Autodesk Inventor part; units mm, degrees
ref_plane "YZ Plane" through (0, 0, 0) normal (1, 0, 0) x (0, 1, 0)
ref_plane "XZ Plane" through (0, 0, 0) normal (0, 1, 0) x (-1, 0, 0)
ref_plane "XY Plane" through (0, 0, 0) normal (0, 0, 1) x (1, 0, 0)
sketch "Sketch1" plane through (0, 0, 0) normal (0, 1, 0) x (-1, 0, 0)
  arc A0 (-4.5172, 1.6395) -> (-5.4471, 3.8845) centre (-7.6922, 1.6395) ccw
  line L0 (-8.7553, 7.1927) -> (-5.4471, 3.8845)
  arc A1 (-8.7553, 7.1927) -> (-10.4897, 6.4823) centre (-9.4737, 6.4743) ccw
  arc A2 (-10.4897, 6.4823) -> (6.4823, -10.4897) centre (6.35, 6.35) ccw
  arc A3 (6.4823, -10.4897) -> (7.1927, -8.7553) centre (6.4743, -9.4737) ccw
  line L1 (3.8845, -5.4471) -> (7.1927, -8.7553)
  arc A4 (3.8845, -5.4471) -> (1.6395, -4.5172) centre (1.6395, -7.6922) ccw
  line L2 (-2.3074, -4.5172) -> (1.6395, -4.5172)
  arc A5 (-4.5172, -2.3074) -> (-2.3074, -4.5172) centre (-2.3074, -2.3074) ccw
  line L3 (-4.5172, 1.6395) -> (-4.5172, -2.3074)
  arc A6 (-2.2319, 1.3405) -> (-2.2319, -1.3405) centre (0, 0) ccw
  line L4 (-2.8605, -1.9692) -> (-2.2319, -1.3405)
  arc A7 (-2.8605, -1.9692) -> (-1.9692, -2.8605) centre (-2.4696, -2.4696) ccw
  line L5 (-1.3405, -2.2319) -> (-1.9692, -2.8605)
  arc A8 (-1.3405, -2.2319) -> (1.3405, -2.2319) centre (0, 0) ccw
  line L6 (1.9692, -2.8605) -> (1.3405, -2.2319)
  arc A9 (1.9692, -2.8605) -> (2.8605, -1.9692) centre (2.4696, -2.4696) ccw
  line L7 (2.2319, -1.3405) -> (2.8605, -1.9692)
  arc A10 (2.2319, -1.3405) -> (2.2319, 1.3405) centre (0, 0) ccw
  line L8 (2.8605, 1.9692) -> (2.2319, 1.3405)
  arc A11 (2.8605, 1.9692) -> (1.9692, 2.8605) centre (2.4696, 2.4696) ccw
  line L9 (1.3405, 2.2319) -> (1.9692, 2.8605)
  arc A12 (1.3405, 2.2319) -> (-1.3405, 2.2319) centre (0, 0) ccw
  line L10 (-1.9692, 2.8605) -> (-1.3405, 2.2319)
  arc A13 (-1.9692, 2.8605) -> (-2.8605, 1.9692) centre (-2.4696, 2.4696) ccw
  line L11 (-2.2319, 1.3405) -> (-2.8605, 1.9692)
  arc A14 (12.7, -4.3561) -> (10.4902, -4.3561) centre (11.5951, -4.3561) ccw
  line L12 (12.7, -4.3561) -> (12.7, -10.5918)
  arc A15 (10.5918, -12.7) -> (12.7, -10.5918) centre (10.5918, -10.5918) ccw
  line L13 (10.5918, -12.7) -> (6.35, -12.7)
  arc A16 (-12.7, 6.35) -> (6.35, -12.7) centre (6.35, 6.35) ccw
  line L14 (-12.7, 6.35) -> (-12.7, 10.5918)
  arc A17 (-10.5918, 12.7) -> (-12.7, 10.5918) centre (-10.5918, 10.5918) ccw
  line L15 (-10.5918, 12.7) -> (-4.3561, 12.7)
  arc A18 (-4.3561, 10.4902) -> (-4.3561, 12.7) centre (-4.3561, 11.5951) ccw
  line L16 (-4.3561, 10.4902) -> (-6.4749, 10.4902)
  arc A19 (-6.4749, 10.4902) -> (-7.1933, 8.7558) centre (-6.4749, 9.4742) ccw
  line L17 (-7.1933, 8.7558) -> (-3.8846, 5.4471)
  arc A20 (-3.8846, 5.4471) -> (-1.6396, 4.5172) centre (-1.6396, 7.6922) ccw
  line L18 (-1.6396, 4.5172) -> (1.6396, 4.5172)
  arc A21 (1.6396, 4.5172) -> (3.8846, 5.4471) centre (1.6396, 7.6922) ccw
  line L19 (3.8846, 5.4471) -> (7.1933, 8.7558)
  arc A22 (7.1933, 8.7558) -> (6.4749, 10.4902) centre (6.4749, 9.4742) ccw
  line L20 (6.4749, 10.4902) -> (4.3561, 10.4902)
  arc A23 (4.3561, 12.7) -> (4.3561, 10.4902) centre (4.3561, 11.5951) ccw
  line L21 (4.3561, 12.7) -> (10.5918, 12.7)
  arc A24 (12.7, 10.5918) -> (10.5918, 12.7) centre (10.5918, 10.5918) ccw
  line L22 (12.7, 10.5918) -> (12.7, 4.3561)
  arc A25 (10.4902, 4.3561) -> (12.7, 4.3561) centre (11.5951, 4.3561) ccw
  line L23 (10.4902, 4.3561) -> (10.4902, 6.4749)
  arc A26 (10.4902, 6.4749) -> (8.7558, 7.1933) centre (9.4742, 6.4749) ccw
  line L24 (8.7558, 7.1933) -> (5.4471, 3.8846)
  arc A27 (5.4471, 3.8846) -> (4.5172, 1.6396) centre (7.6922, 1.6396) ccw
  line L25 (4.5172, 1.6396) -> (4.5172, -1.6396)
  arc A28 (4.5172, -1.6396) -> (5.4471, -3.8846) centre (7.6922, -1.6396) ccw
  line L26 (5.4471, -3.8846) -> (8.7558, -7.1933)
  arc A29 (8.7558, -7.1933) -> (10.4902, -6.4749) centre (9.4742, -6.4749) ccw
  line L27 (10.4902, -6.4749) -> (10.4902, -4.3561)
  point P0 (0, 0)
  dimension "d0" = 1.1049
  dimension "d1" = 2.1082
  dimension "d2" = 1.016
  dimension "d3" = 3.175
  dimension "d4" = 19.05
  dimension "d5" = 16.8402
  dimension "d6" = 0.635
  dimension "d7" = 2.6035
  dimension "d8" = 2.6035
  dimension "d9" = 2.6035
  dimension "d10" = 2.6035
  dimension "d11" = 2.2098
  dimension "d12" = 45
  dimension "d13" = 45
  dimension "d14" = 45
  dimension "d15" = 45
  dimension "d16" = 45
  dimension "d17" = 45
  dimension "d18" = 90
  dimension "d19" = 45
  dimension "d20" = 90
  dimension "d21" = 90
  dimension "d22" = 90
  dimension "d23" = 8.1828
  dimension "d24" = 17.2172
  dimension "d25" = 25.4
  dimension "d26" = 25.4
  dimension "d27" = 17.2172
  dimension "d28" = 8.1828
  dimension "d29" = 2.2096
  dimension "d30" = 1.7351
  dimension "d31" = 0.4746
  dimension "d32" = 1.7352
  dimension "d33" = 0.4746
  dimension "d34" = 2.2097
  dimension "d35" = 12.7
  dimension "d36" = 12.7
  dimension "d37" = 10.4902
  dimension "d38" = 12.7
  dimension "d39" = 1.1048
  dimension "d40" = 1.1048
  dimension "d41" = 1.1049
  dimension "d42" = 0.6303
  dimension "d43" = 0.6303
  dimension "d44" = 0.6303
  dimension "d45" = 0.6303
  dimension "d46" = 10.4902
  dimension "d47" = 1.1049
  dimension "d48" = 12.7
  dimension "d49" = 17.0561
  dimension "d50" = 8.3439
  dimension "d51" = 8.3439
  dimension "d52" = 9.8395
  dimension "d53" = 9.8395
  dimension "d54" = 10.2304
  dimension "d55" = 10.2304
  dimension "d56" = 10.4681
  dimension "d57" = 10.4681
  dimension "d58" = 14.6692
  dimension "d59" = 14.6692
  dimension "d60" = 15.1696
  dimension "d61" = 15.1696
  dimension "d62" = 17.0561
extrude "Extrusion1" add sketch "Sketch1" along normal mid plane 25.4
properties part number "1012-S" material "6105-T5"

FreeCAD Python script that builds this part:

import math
import FreeCAD as App
import Part
import Sketcher

V = App.Vector
Q = App.Units.Quantity

doc = App.newDocument("Part")
body = doc.addObject("PartDesign::Body", "Body")

sketch1 = body.newObject("Sketcher::SketchObject", "Sketch")
sketch1.AttachmentSupport = (doc.getObject("XZ_Plane"), [""])
sketch1.MapMode = "FlatFace"
sketch1.addGeometry(Part.LineSegment(V(-12.7, -10.6, 0), V(-12.7, -4.4, 0)), False)
sketch1.addGeometry(Part.ArcOfCircle(Part.Circle(V(-11.6, -4.4, 0), V(0, 0, 1), 1.1), math.radians(0), math.radians(180)), False)
sketch1.addGeometry(Part.LineSegment(V(-10.5, -4.4, 0), V(-10.5, -6.5, 0)), False)
sketch1.addGeometry(Part.ArcOfCircle(Part.Circle(V(-9.5, -6.5, 0), V(0, 0, 1), 1), math.radians(180), math.radians(315)), False)
sketch1.addGeometry(Part.LineSegment(V(-8.8, -7.2, 0), V(-5.4, -3.9, 0)), False)
sketch1.addGeometry(Part.ArcOfCircle(Part.Circle(V(-7.7, -1.6, 0), V(0, 0, 1), 3.2), math.radians(-45), math.radians(0)), False)
sketch1.addGeometry(Part.LineSegment(V(-4.5, -1.6, 0), V(-4.5, 1.6, 0)), False)
sketch1.addGeometry(Part.ArcOfCircle(Part.Circle(V(-7.7, 1.6, 0), V(0, 0, 1), 3.2), math.radians(0), math.radians(45)), False)
sketch1.addGeometry(Part.LineSegment(V(-5.4, 3.9, 0), V(-8.8, 7.2, 0)), False)
sketch1.addGeometry(Part.ArcOfCircle(Part.Circle(V(-9.5, 6.5, 0), V(0, 0, 1), 1), math.radians(45), math.radians(180)), False)
sketch1.addGeometry(Part.LineSegment(V(-10.5, 6.5, 0), V(-10.5, 4.4, 0)), False)
sketch1.addGeometry(Part.ArcOfCircle(Part.Circle(V(-11.6, 4.4, 0), V(0, 0, 1), 1.1), math.radians(180), math.radians(360)), False)
sketch1.addGeometry(Part.LineSegment(V(-12.7, 4.4, 0), V(-12.7, 10.6, 0)), False)
sketch1.addGeometry(Part.ArcOfCircle(Part.Circle(V(-10.6, 10.6, 0), V(0, 0, 1), 2.1), math.radians(90), math.radians(180)), False)
sketch1.addGeometry(Part.LineSegment(V(-10.6, 12.7, 0), V(-4.4, 12.7, 0)), False)
sketch1.addGeometry(Part.ArcOfCircle(Part.Circle(V(-4.4, 11.6, 0), V(0, 0, 1), 1.1), math.radians(-90), math.radians(90)), False)
sketch1.addGeometry(Part.LineSegment(V(-4.4, 10.5, 0), V(-6.5, 10.5, 0)), False)
sketch1.addGeometry(Part.ArcOfCircle(Part.Circle(V(-6.5, 9.5, 0), V(0, 0, 1), 1), math.radians(90), math.radians(225)), False)
sketch1.addGeometry(Part.LineSegment(V(-7.2, 8.8, 0), V(-3.9, 5.4, 0)), False)
sketch1.addGeometry(Part.ArcOfCircle(Part.Circle(V(-1.6, 7.7, 0), V(0, 0, 1), 3.2), math.radians(-135), math.radians(-90)), False)
sketch1.addGeometry(Part.LineSegment(V(-1.6, 4.5, 0), V(1.6, 4.5, 0)), False)
sketch1.addGeometry(Part.ArcOfCircle(Part.Circle(V(1.6, 7.7, 0), V(0, 0, 1), 3.2), math.radians(-90), math.radians(-45)), False)
sketch1.addGeometry(Part.LineSegment(V(3.9, 5.4, 0), V(7.2, 8.8, 0)), False)
sketch1.addGeometry(Part.ArcOfCircle(Part.Circle(V(6.5, 9.5, 0), V(0, 0, 1), 1), math.radians(-45), math.radians(90)), False)
sketch1.addGeometry(Part.LineSegment(V(6.5, 10.5, 0), V(4.4, 10.5, 0)), False)
sketch1.addGeometry(Part.ArcOfCircle(Part.Circle(V(4.4, 11.6, 0), V(0, 0, 1), 1.1), math.radians(90), math.radians(270)), False)
sketch1.addGeometry(Part.LineSegment(V(4.4, 12.7, 0), V(10.6, 12.7, 0)), False)
sketch1.addGeometry(Part.ArcOfCircle(Part.Circle(V(10.6, 10.6, 0), V(0, 0, 1), 2.1), math.radians(0), math.radians(90)), False)
sketch1.addGeometry(Part.LineSegment(V(12.7, 10.6, 0), V(12.7, 6.3, 0)), False)
sketch1.addGeometry(Part.ArcOfCircle(Part.Circle(V(-6.3, 6.3, 0), V(0, 0, 1), 19), math.radians(-90), math.radians(0)), False)
sketch1.addGeometry(Part.LineSegment(V(-6.3, -12.7, 0), V(-10.6, -12.7, 0)), False)
sketch1.addGeometry(Part.ArcOfCircle(Part.Circle(V(-10.6, -10.6, 0), V(0, 0, 1), 2.1), math.radians(180), math.radians(270)), False)
sketch1.addGeometry(Part.ArcOfCircle(Part.Circle(V(7.7, 1.6, 0), V(0, 0, 1), 3.2), math.radians(135), math.radians(180)), False)
sketch1.addGeometry(Part.LineSegment(V(4.5, 1.6, 0), V(4.5, -2.3, 0)), False)
sketch1.addGeometry(Part.ArcOfCircle(Part.Circle(V(2.3, -2.3, 0), V(0, 0, 1), 2.2), math.radians(-90), math.radians(0)), False)
sketch1.addGeometry(Part.LineSegment(V(2.3, -4.5, 0), V(-1.6, -4.5, 0)), False)
sketch1.addGeometry(Part.ArcOfCircle(Part.Circle(V(-1.6, -7.7, 0), V(0, 0, 1), 3.2), math.radians(90), math.radians(135)), False)
sketch1.addGeometry(Part.LineSegment(V(-3.9, -5.4, 0), V(-7.2, -8.8, 0)), False)
sketch1.addGeometry(Part.ArcOfCircle(Part.Circle(V(-6.5, -9.5, 0), V(0, 0, 1), 1), math.radians(135), math.radians(270)), False)
sketch1.addGeometry(Part.ArcOfCircle(Part.Circle(V(-6.3, 6.3, 0), V(0, 0, 1), 16.8), math.radians(-90), math.radians(0)), False)
sketch1.addGeometry(Part.ArcOfCircle(Part.Circle(V(9.5, 6.5, 0), V(0, 0, 1), 1), math.radians(0), math.radians(135)), False)
sketch1.addGeometry(Part.LineSegment(V(8.8, 7.2, 0), V(5.4, 3.9, 0)), False)
sketch1.addGeometry(Part.ArcOfCircle(Part.Circle(V(0, 0, 0), V(0, 0, 1), 2.6), math.radians(-31), math.radians(31)), False)
sketch1.addGeometry(Part.LineSegment(V(2.2, 1.3, 0), V(2.9, 2, 0)), False)
sketch1.addGeometry(Part.ArcOfCircle(Part.Circle(V(2.5, 2.5, 0), V(0, 0, 1), 0.6), math.radians(-52), math.radians(142)), False)
sketch1.addGeometry(Part.LineSegment(V(2, 2.9, 0), V(1.3, 2.2, 0)), False)
sketch1.addGeometry(Part.ArcOfCircle(Part.Circle(V(0, 0, 0), V(0, 0, 1), 2.6), math.radians(59), math.radians(121)), False)
sketch1.addGeometry(Part.LineSegment(V(-1.3, 2.2, 0), V(-2, 2.9, 0)), False)
sketch1.addGeometry(Part.ArcOfCircle(Part.Circle(V(-2.5, 2.5, 0), V(0, 0, 1), 0.6), math.radians(38), math.radians(232)), False)
sketch1.addGeometry(Part.LineSegment(V(-2.9, 2, 0), V(-2.2, 1.3, 0)), False)
sketch1.addGeometry(Part.ArcOfCircle(Part.Circle(V(0, 0, 0), V(0, 0, 1), 2.6), math.radians(149), math.radians(211)), False)
sketch1.addGeometry(Part.LineSegment(V(-2.2, -1.3, 0), V(-2.9, -2, 0)), False)
sketch1.addGeometry(Part.ArcOfCircle(Part.Circle(V(-2.5, -2.5, 0), V(0, 0, 1), 0.6), math.radians(128), math.radians(322)), False)
sketch1.addGeometry(Part.LineSegment(V(-2, -2.9, 0), V(-1.3, -2.2, 0)), False)
sketch1.addGeometry(Part.ArcOfCircle(Part.Circle(V(0, 0, 0), V(0, 0, 1), 2.6), math.radians(-121), math.radians(-59)), False)
sketch1.addGeometry(Part.LineSegment(V(1.3, -2.2, 0), V(2, -2.9, 0)), False)
sketch1.addGeometry(Part.ArcOfCircle(Part.Circle(V(2.5, -2.5, 0), V(0, 0, 1), 0.6), math.radians(-142), math.radians(52)), False)
sketch1.addGeometry(Part.LineSegment(V(2.9, -2, 0), V(2.2, -1.3, 0)), False)
sketch1.addConstraint(Sketcher.Constraint("Tangent", 0, 2, 1, 2))
sketch1.addConstraint(Sketcher.Constraint("Tangent", 1, 1, 2, 1))
sketch1.addConstraint(Sketcher.Constraint("Tangent", 2, 2, 3, 1))
sketch1.addConstraint(Sketcher.Constraint("Tangent", 3, 2, 4, 1))
sketch1.addConstraint(Sketcher.Constraint("Tangent", 4, 2, 5, 1))
sketch1.addConstraint(Sketcher.Constraint("Tangent", 5, 2, 6, 1))
sketch1.addConstraint(Sketcher.Constraint("Tangent", 6, 2, 7, 1))
sketch1.addConstraint(Sketcher.Constraint("Tangent", 7, 2, 8, 1))
sketch1.addConstraint(Sketcher.Constraint("Tangent", 8, 2, 9, 1))
sketch1.addConstraint(Sketcher.Constraint("Tangent", 9, 2, 10, 1))
sketch1.addConstraint(Sketcher.Constraint("Tangent", 10, 2, 11, 2))
sketch1.addConstraint(Sketcher.Constraint("Tangent", 11, 1, 12, 1))
sketch1.addConstraint(Sketcher.Constraint("Tangent", 12, 2, 13, 2))
sketch1.addConstraint(Sketcher.Constraint("Tangent", 13, 1, 14, 1))
sketch1.addConstraint(Sketcher.Constraint("Tangent", 14, 2, 15, 2))
sketch1.addConstraint(Sketcher.Constraint("Tangent", 15, 1, 16, 1))
sketch1.addConstraint(Sketcher.Constraint("Tangent", 16, 2, 17, 1))
sketch1.addConstraint(Sketcher.Constraint("Tangent", 17, 2, 18, 1))
sketch1.addConstraint(Sketcher.Constraint("Tangent", 18, 2, 19, 1))
sketch1.addConstraint(Sketcher.Constraint("Tangent", 19, 2, 20, 1))
sketch1.addConstraint(Sketcher.Constraint("Tangent", 20, 2, 21, 1))
sketch1.addConstraint(Sketcher.Constraint("Tangent", 21, 2, 22, 1))
sketch1.addConstraint(Sketcher.Constraint("Tangent", 22, 2, 23, 1))
sketch1.addConstraint(Sketcher.Constraint("Tangent", 23, 2, 24, 1))
sketch1.addConstraint(Sketcher.Constraint("Tangent", 24, 2, 25, 2))
sketch1.addConstraint(Sketcher.Constraint("Tangent", 25, 1, 26, 1))
sketch1.addConstraint(Sketcher.Constraint("Tangent", 26, 2, 27, 2))
sketch1.addConstraint(Sketcher.Constraint("Tangent", 27, 1, 28, 1))
sketch1.addConstraint(Sketcher.Constraint("Tangent", 28, 2, 29, 2))
sketch1.addConstraint(Sketcher.Constraint("Tangent", 29, 1, 30, 1))
sketch1.addConstraint(Sketcher.Constraint("Tangent", 30, 2, 31, 2))
sketch1.addConstraint(Sketcher.Constraint("Tangent", 31, 1, 0, 1))
sketch1.addConstraint(Sketcher.Constraint("Tangent", 32, 2, 33, 1))
sketch1.addConstraint(Sketcher.Constraint("Tangent", 33, 2, 34, 2))
sketch1.addConstraint(Sketcher.Constraint("Tangent", 34, 1, 35, 1))
sketch1.addConstraint(Sketcher.Constraint("Tangent", 35, 2, 36, 1))
sketch1.addConstraint(Sketcher.Constraint("Tangent", 36, 2, 37, 1))
sketch1.addConstraint(Sketcher.Constraint("Tangent", 37, 2, 38, 1))
sketch1.addConstraint(Sketcher.Constraint("Tangent", 38, 2, 39, 1))
sketch1.addConstraint(Sketcher.Constraint("Tangent", 39, 2, 40, 1))
sketch1.addConstraint(Sketcher.Constraint("Tangent", 40, 2, 41, 1))
sketch1.addConstraint(Sketcher.Constraint("Tangent", 41, 2, 32, 1))
sketch1.addConstraint(Sketcher.Constraint("Coincident", 42, 2, 43, 1))
sketch1.addConstraint(Sketcher.Constraint("Coincident", 43, 2, 44, 1))
sketch1.addConstraint(Sketcher.Constraint("Coincident", 44, 2, 45, 1))
sketch1.addConstraint(Sketcher.Constraint("Coincident", 45, 2, 46, 1))
sketch1.addConstraint(Sketcher.Constraint("Coincident", 46, 2, 47, 1))
sketch1.addConstraint(Sketcher.Constraint("Coincident", 47, 2, 48, 1))
sketch1.addConstraint(Sketcher.Constraint("Coincident", 48, 2, 49, 1))
sketch1.addConstraint(Sketcher.Constraint("Coincident", 49, 2, 50, 1))
sketch1.addConstraint(Sketcher.Constraint("Coincident", 50, 2, 51, 1))
sketch1.addConstraint(Sketcher.Constraint("Coincident", 51, 2, 52, 1))
sketch1.addConstraint(Sketcher.Constraint("Coincident", 52, 2, 53, 1))
sketch1.addConstraint(Sketcher.Constraint("Coincident", 53, 2, 54, 1))
sketch1.addConstraint(Sketcher.Constraint("Coincident", 54, 2, 55, 1))
sketch1.addConstraint(Sketcher.Constraint("Coincident", 55, 2, 56, 1))
sketch1.addConstraint(Sketcher.Constraint("Coincident", 56, 2, 57, 1))
sketch1.addConstraint(Sketcher.Constraint("Coincident", 57, 2, 42, 1))
sketch1.addConstraint(Sketcher.Constraint("Vertical", 0))
sketch1.addConstraint(Sketcher.Constraint("Vertical", 2))
sketch1.addConstraint(Sketcher.Constraint("Vertical", 6))
sketch1.addConstraint(Sketcher.Constraint("Vertical", 10))
sketch1.addConstraint(Sketcher.Constraint("Vertical", 12))
sketch1.addConstraint(Sketcher.Constraint("Horizontal", 14))
sketch1.addConstraint(Sketcher.Constraint("Horizontal", 16))
sketch1.addConstraint(Sketcher.Constraint("Horizontal", 20))
sketch1.addConstraint(Sketcher.Constraint("Horizontal", 24))
sketch1.addConstraint(Sketcher.Constraint("Horizontal", 26))
sketch1.addConstraint(Sketcher.Constraint("Vertical", 28))
sketch1.addConstraint(Sketcher.Constraint("Horizontal", 30))
sketch1.addConstraint(Sketcher.Constraint("Vertical", 33))
sketch1.addConstraint(Sketcher.Constraint("Horizontal", 35))
sketch1.addConstraint(Sketcher.Constraint("Coincident", 42, 3, -1, 1))
sketch1.addConstraint(Sketcher.Constraint("Coincident", 46, 3, -1, 1))
sketch1.addConstraint(Sketcher.Constraint("Coincident", 50, 3, -1, 1))
sketch1.addConstraint(Sketcher.Constraint("Coincident", 54, 3, -1, 1))
sketch1.addConstraint(Sketcher.Constraint("Coincident", 39, 3, 29, 3))
sketch1.addConstraint(Sketcher.Constraint("Equal", 5, 7))
sketch1.addConstraint(Sketcher.Constraint("Equal", 3, 9))
sketch1.addConstraint(Sketcher.Constraint("Equal", 1, 11))
sketch1.addConstraint(Sketcher.Constraint("Equal", 11, 15))
sketch1.addConstraint(Sketcher.Constraint("Equal", 9, 17))
sketch1.addConstraint(Sketcher.Constraint("Equal", 7, 19))
sketch1.addConstraint(Sketcher.Constraint("Equal", 19, 21))
sketch1.addConstraint(Sketcher.Constraint("Equal", 17, 23))
sketch1.addConstraint(Sketcher.Constraint("Equal", 15, 25))
sketch1.addConstraint(Sketcher.Constraint("Equal", 13, 27))
sketch1.addConstraint(Sketcher.Constraint("Equal", 27, 31))
sketch1.addConstraint(Sketcher.Constraint("Equal", 21, 32))
sketch1.addConstraint(Sketcher.Constraint("Equal", 32, 36))
sketch1.addConstraint(Sketcher.Constraint("Equal", 23, 38))
sketch1.addConstraint(Sketcher.Constraint("Equal", 38, 40))
sketch1.addConstraint(Sketcher.Constraint("Equal", 42, 46))
sketch1.addConstraint(Sketcher.Constraint("Equal", 44, 48))
sketch1.addConstraint(Sketcher.Constraint("Equal", 46, 50))
sketch1.addConstraint(Sketcher.Constraint("Equal", 48, 52))
sketch1.addConstraint(Sketcher.Constraint("Equal", 50, 54))
sketch1.addConstraint(Sketcher.Constraint("Equal", 52, 56))
sketch1.addConstraint(Sketcher.Constraint("Symmetric", 27, 3, 31, 3, -1, 1))
sketch1.addConstraint(Sketcher.Constraint("Symmetric", 5, 3, 32, 3, -1, 1))
sketch1.addConstraint(Sketcher.Constraint("Symmetric", 21, 3, 36, 3, -1, 1))
sketch1.addConstraint(Sketcher.Constraint("Symmetric", 44, 3, 52, 3, -1, 1))
sketch1.addConstraint(Sketcher.Constraint("Symmetric", 48, 3, 56, 3, -1, 1))
sketch1.addConstraint(Sketcher.Constraint("Symmetric", 17, 3, 23, 3, -2))
sketch1.addConstraint(Sketcher.Constraint("Symmetric", 44, 3, 48, 3, -2))
sketch1.addConstraint(Sketcher.Constraint("Symmetric", 7, 2, 41, 2, -2))
sketch1.addConstraint(Sketcher.Constraint("Symmetric", 3, 3, 9, 3, -1))
sketch1.addConstraint(Sketcher.Constraint("Symmetric", 18, 2, 36, 2, -1))
sketch1.addConstraint(Sketcher.Constraint("Perpendicular", 4, 8))
sketch1.addConstraint(Sketcher.Constraint("Parallel", 8, 18))
sketch1.addConstraint(Sketcher.Constraint("Parallel", 41, 43))
sketch1.addConstraint(Sketcher.Constraint("Parallel", 43, 45))
sketch1.addConstraint(Sketcher.Constraint("Perpendicular", 45, 47))
sketch1.addConstraint(Sketcher.Constraint("Parallel", 47, 49))
sketch1.addConstraint(Sketcher.Constraint("Perpendicular", 49, 51))
sketch1.addConstraint(Sketcher.Constraint("Parallel", 51, 53))
sketch1.addConstraint(Sketcher.Constraint("Perpendicular", 53, 55))
sketch1.addConstraint(Sketcher.Constraint("Parallel", 55, 57))
sketch1.addConstraint(Sketcher.Constraint("Horizontal", 45, 2, 46, 2))
sketch1.addConstraint(Sketcher.Constraint("Horizontal", 43, 2, 48, 2))
sketch1.addConstraint(Sketcher.Constraint("Horizontal", 53, 2, 54, 2))
sketch1.addConstraint(Sketcher.Constraint("Horizontal", 51, 2, 56, 2))
sketch1.addConstraint(Sketcher.Constraint("Vertical", 49, 2, 50, 2))
sketch1.addConstraint(Sketcher.Constraint("Vertical", 47, 2, 52, 2))
sketch1.addConstraint(Sketcher.Constraint("Equal", 16, 24))
sketch1.addConstraint(Sketcher.Constraint("Equal", 26, 0))
sketch1.addConstraint(Sketcher.Constraint("Equal", 24, 2))
sketch1.addConstraint(Sketcher.Constraint("Equal", 20, 6))
sketch1.addConstraint(Sketcher.Constraint("Equal", 2, 10))
sketch1.addConstraint(Sketcher.Constraint("Equal", 30, 28))
sketch1.addConstraint(Sketcher.Constraint("Equal", 43, 45))
sketch1.addConstraint(Sketcher.Constraint("Radius", 3, Q("0.04 in")))
sketch1.addConstraint(Sketcher.Constraint("Radius", 29, Q("0.75 in")))
sketch1.addConstraint(Sketcher.Constraint("Radius", 5, Q("0.125 in")))
sketch1.addConstraint(Sketcher.Constraint("Radius", 13, Q("0.083 in")))
sketch1.addConstraint(Sketcher.Constraint("Radius", 34, Q("0.087 in")))
sketch1.addConstraint(Sketcher.Constraint("Radius", 39, Q("0.663 in")))
sketch1.addConstraint(Sketcher.Constraint("Radius", 44, Q("0.025 in")))
sketch1.addConstraint(Sketcher.Constraint("DistanceX", 0, 2, -1, 1, Q("0.5 in")))
sketch1.addConstraint(Sketcher.Constraint("Radius", 1, Q("0.0435 in")))
sketch1.addConstraint(Sketcher.Constraint("Radius", 42, Q("0.1025 in")))
sketch1.addConstraint(Sketcher.Constraint("Distance", 43, Q("0.035 in")))
sketch1.addConstraint(Sketcher.Constraint("DistanceX", 14, 1, 14, 2, Q("0.2455 in")))
sketch1.addConstraint(Sketcher.Constraint("DistanceX", 20, 1, 20, 2, Q("0.1291 in")))
sketch1.addConstraint(Sketcher.Constraint("DistanceX", 35, 2, 35, 1, Q("0.1554 in")))
sketch1.addConstraint(Sketcher.Constraint("DistanceX", -1, 1, 44, 3, Q("2.4696 mm")))
sketch1.addConstraint(Sketcher.Constraint("DistanceY", -1, 1, 44, 3, Q("2.4696 mm")))
pad1 = body.newObject("PartDesign::Pad", "Pad")
pad1.Profile = sketch1
pad1.Length = Q("1 in")
pad1.Midplane = True

doc.recompute()
